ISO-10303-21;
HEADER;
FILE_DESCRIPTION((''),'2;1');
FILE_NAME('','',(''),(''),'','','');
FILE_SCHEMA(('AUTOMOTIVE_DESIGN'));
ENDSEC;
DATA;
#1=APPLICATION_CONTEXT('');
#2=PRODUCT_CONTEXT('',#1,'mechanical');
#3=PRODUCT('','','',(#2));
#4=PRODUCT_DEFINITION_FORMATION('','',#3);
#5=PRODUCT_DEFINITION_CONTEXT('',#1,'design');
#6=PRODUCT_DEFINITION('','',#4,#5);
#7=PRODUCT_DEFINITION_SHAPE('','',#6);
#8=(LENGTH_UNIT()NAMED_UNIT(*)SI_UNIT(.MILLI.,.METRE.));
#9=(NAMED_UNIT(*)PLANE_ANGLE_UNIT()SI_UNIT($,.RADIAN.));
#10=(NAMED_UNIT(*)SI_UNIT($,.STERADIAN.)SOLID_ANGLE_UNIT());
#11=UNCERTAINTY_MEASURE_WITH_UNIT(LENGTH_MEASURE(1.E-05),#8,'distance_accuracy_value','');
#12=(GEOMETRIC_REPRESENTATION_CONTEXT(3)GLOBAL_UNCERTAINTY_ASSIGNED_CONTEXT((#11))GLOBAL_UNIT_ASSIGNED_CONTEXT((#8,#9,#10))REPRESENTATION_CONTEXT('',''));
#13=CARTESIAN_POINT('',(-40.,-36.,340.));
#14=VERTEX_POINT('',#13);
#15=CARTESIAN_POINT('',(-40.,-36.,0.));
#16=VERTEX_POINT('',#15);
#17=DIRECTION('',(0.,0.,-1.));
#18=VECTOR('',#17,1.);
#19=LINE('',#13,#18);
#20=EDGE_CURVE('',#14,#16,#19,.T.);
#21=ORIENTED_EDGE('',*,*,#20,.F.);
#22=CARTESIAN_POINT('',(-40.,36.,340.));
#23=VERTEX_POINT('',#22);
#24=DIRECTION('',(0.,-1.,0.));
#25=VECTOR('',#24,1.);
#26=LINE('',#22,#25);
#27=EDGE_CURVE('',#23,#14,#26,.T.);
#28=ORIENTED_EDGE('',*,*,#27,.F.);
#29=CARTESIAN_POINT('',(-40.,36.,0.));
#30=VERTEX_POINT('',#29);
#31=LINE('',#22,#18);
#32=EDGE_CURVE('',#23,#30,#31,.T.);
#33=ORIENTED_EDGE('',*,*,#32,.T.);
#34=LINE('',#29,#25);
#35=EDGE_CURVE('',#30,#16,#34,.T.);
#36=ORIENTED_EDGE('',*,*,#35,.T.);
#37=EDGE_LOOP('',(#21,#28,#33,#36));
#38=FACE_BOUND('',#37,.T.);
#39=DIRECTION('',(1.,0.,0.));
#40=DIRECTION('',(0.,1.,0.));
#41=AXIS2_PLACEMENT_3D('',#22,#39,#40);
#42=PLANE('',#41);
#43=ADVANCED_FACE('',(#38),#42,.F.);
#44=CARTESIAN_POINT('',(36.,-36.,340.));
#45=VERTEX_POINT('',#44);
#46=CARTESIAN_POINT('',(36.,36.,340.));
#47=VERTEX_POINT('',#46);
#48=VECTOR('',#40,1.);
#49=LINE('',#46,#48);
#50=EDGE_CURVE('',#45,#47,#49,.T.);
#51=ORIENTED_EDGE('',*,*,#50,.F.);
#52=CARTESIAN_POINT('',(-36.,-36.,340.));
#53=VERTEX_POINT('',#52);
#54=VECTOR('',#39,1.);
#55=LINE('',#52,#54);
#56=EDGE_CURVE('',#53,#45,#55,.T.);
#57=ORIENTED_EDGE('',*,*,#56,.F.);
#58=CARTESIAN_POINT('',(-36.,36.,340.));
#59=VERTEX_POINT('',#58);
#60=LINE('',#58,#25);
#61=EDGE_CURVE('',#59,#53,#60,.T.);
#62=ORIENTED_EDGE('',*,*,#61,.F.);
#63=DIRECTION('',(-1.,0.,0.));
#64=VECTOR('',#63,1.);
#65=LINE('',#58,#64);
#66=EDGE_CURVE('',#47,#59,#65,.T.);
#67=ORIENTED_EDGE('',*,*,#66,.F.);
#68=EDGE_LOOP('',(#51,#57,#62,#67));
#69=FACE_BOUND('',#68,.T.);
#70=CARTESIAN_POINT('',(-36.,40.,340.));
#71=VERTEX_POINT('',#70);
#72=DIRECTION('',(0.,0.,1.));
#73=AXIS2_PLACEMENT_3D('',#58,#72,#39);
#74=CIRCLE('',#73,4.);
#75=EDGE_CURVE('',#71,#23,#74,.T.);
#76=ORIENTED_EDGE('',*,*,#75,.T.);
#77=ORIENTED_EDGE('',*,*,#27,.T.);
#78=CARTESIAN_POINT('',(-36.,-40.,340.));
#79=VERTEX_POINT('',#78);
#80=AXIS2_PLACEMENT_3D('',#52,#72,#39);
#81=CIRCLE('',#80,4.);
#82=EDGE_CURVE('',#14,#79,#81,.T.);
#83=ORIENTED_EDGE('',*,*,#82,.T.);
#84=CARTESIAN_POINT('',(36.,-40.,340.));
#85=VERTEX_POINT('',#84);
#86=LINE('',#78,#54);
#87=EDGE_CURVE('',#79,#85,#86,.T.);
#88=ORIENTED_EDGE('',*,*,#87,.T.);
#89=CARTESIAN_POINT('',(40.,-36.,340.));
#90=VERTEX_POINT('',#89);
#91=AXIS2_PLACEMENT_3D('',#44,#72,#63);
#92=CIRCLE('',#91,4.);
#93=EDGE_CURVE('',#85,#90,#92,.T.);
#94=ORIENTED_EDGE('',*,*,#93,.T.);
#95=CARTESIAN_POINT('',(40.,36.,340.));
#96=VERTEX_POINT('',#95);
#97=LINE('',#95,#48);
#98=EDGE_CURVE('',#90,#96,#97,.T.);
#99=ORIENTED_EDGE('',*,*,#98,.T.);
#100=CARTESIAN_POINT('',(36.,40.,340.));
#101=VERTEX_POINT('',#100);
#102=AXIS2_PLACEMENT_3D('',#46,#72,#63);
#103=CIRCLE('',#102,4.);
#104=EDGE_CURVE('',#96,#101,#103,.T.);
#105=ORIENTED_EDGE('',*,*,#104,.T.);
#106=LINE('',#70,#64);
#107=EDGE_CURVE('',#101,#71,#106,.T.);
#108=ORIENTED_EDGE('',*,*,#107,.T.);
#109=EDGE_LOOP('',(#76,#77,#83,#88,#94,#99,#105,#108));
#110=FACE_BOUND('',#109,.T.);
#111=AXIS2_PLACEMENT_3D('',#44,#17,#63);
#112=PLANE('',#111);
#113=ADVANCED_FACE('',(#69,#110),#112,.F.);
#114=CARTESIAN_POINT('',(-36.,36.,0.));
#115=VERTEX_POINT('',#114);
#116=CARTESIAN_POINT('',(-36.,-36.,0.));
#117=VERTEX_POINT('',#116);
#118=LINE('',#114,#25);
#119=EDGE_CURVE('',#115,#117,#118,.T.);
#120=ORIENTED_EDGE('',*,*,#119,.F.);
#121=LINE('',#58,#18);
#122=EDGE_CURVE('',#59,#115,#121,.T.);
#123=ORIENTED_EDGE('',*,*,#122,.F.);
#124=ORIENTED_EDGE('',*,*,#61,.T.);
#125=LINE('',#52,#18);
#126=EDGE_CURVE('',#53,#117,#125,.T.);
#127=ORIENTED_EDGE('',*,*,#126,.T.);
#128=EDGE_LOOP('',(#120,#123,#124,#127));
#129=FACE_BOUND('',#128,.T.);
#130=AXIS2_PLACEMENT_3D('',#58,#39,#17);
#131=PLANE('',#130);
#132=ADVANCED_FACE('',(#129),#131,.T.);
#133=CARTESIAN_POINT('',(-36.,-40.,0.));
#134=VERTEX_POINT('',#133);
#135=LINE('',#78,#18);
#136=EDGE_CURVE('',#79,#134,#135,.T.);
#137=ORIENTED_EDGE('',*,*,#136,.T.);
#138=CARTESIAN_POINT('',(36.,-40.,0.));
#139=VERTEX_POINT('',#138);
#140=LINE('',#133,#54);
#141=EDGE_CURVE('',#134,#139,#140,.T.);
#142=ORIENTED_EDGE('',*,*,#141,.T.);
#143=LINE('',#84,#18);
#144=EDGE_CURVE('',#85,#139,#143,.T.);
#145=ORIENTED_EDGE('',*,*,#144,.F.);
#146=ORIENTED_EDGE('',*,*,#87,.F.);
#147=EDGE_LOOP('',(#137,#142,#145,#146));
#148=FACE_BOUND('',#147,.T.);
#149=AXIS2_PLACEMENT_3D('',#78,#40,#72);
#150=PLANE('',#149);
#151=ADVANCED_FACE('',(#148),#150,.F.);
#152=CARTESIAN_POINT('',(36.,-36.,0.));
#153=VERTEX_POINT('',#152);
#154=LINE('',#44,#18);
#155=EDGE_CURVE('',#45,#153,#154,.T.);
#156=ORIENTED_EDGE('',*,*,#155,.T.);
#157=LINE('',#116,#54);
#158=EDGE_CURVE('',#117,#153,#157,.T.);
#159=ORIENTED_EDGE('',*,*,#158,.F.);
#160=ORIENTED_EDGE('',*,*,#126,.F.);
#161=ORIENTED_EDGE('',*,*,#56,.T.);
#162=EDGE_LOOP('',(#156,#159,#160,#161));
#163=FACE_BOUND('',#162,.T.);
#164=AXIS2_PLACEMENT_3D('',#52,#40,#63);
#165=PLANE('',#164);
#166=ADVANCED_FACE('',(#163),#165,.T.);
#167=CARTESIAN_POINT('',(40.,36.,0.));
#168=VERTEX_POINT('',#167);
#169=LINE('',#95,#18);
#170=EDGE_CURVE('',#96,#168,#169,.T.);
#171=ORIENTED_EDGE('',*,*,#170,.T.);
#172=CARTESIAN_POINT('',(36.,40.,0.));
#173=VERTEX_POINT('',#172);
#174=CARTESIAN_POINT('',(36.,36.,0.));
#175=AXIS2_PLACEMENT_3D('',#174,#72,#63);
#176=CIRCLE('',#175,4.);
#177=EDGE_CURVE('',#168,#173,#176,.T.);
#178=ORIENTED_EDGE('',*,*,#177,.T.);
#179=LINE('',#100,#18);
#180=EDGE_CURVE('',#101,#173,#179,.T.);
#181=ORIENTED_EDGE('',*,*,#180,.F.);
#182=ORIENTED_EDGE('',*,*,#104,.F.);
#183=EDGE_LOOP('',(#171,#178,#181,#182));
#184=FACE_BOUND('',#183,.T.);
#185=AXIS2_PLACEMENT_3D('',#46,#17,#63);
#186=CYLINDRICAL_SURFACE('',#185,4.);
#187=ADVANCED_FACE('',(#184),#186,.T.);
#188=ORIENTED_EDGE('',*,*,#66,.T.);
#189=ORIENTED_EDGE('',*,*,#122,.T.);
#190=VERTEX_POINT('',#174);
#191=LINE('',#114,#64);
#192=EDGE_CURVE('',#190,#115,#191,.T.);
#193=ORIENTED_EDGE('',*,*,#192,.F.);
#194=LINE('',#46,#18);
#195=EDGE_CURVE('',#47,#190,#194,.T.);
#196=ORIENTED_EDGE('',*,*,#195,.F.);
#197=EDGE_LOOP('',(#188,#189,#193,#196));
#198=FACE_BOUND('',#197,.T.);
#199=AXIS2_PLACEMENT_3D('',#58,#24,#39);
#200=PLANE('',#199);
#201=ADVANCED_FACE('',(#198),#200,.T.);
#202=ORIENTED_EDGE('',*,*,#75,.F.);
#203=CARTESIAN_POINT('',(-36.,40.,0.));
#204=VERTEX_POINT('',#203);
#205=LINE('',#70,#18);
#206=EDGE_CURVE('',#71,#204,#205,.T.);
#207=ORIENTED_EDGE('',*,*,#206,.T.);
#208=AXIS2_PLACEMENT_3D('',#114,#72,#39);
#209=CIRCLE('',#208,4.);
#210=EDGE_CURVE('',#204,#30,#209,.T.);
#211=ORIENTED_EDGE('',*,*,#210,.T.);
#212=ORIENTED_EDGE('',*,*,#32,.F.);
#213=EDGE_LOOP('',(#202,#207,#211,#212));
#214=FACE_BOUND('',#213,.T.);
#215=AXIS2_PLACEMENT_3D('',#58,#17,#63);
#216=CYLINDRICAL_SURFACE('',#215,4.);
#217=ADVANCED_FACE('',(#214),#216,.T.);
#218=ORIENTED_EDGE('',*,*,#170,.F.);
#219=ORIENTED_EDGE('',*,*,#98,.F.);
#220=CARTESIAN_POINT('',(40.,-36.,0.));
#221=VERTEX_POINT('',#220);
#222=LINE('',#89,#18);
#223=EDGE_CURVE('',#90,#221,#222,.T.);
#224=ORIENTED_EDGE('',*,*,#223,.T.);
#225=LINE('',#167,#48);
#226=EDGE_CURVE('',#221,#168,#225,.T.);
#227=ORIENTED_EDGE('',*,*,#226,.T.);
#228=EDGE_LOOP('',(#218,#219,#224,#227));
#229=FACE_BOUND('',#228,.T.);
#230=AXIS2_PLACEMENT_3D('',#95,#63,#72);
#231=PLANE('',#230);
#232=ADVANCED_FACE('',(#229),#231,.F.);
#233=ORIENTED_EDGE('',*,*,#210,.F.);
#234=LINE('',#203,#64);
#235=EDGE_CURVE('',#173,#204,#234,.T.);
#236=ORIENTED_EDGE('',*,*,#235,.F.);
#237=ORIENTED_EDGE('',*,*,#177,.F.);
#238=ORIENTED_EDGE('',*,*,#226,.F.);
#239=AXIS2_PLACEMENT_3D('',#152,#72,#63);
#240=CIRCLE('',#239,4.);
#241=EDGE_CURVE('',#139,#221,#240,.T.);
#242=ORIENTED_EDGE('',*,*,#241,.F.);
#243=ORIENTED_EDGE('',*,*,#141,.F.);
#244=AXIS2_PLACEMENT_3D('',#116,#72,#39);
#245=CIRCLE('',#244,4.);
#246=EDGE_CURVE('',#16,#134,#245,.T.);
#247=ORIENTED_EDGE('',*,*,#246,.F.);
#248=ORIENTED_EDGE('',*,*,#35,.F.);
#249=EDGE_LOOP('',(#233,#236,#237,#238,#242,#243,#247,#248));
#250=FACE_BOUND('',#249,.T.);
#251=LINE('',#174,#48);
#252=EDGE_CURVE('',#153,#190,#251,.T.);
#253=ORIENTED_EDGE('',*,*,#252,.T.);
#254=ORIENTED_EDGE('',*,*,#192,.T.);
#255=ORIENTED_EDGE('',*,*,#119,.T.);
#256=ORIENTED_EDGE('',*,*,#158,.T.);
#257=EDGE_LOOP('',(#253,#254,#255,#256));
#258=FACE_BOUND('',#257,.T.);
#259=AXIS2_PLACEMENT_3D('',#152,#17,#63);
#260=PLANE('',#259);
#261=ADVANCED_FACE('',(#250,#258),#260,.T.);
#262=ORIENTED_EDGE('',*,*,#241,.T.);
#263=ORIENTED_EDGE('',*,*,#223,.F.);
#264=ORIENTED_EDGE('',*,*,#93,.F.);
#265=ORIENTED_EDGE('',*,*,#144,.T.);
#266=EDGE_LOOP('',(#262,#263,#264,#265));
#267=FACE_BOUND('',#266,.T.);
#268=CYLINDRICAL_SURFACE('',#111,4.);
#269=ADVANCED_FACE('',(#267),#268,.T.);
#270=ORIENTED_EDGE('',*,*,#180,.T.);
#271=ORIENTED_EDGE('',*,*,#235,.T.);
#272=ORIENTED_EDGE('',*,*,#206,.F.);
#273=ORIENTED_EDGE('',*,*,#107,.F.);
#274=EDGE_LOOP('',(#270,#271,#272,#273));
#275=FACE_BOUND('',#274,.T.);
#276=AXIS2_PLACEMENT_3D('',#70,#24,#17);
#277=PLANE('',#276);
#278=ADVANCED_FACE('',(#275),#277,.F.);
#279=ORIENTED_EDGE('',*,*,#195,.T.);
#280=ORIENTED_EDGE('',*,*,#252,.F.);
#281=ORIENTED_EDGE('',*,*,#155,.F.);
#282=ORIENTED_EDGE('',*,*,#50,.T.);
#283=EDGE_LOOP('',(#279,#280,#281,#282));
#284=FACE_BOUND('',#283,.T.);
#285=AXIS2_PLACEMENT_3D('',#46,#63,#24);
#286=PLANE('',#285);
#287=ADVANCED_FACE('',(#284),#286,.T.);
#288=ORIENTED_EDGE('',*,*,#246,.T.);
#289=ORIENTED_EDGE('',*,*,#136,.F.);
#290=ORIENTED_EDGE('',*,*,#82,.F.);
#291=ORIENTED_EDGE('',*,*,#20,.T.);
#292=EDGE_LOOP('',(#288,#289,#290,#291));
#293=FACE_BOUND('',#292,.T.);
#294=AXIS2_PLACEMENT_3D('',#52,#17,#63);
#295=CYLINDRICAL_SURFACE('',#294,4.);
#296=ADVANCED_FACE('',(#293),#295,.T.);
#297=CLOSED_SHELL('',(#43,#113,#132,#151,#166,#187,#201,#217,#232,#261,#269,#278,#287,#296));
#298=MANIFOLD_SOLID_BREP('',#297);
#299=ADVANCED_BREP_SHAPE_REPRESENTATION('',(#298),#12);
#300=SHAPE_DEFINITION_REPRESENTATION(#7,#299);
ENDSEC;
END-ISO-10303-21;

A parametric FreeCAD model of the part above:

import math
import FreeCAD as App
import Part
import Sketcher


def add_polygon(sketch, points):
    """Adds a closed chain of lines whose ends are joined by coincident constraints."""
    first, n = sketch.GeometryCount, len(points)
    for a, b in zip(points, points[1:] + points[:1]):
        sketch.addGeometry(Part.LineSegment(App.Vector(*a, 0), App.Vector(*b, 0)), False)
    for i in range(n):
        sketch.addConstraint(Sketcher.Constraint("Coincident", first + i, 2, first + (i + 1) % n, 1))

doc = App.newDocument("Part")
body = doc.addObject("PartDesign::Body", "Body")

sketch1 = body.newObject("Sketcher::SketchObject", "Sketch")
sketch1.AttachmentSupport = (doc.getObject("XY_Plane"), [""])
sketch1.MapMode = "FlatFace"
sketch1.addGeometry(Part.LineSegment(App.Vector(36, 40, 0), App.Vector(-36, 40, 0)), False)
sketch1.addGeometry(Part.ArcOfCircle(Part.Circle(App.Vector(-36, 36, 0), App.Vector(0, 0, 1), 4), math.radians(90), math.radians(180)), False)
sketch1.addGeometry(Part.LineSegment(App.Vector(-40, 36, 0), App.Vector(-40, -36, 0)), False)
sketch1.addGeometry(Part.ArcOfCircle(Part.Circle(App.Vector(-36, -36, 0), App.Vector(0, 0, 1), 4), math.radians(180), math.radians(270)), False)
sketch1.addGeometry(Part.LineSegment(App.Vector(-36, -40, 0), App.Vector(36, -40, 0)), False)
sketch1.addGeometry(Part.ArcOfCircle(Part.Circle(App.Vector(36, -36, 0), App.Vector(0, 0, 1), 4), math.radians(-90), math.radians(0)), False)
sketch1.addGeometry(Part.LineSegment(App.Vector(40, -36, 0), App.Vector(40, 36, 0)), False)
sketch1.addGeometry(Part.ArcOfCircle(Part.Circle(App.Vector(36, 36, 0), App.Vector(0, 0, 1), 4), math.radians(0), math.radians(90)), False)
add_polygon(sketch1, [(-36, -36), (-36, 36), (36, 36), (36, -36)])
sketch1.addConstraint([
    Sketcher.Constraint("Tangent", 0, 2, 1, 1),
    Sketcher.Constraint("Tangent", 1, 2, 2, 1),
    Sketcher.Constraint("Tangent", 2, 2, 3, 1),
    Sketcher.Constraint("Tangent", 3, 2, 4, 1),
    Sketcher.Constraint("Tangent", 4, 2, 5, 1),
    Sketcher.Constraint("Tangent", 5, 2, 6, 1),
    Sketcher.Constraint("Tangent", 6, 2, 7, 1),
    Sketcher.Constraint("Tangent", 7, 2, 0, 1),
    Sketcher.Constraint("Horizontal", 0),
    Sketcher.Constraint("Vertical", 2),
    Sketcher.Constraint("Horizontal", 4),
    Sketcher.Constraint("Vertical", 6),
    Sketcher.Constraint("Vertical", 8),
    Sketcher.Constraint("Horizontal", 9),
    Sketcher.Constraint("Vertical", 10),
    Sketcher.Constraint("Horizontal", 11),
    Sketcher.Constraint("Coincident", 8, 2, 1, 3),
    Sketcher.Constraint("Coincident", 9, 2, 7, 3),
    Sketcher.Constraint("Coincident", 10, 2, 5, 3),
    Sketcher.Constraint("Equal", 1, 3),
    Sketcher.Constraint("Symmetric", 1, 3, 5, 3, -1, 1),
    Sketcher.Constraint("Equal", 11, 2),
    Sketcher.Constraint("Radius", 1, 4.0),
    Sketcher.Constraint("DistanceX", 0, 2, 0, 1, 72.0),
])
pad1 = body.newObject("PartDesign::Pad", "Pad")
pad1.Profile = sketch1
pad1.Length = 340

doc.recompute()
